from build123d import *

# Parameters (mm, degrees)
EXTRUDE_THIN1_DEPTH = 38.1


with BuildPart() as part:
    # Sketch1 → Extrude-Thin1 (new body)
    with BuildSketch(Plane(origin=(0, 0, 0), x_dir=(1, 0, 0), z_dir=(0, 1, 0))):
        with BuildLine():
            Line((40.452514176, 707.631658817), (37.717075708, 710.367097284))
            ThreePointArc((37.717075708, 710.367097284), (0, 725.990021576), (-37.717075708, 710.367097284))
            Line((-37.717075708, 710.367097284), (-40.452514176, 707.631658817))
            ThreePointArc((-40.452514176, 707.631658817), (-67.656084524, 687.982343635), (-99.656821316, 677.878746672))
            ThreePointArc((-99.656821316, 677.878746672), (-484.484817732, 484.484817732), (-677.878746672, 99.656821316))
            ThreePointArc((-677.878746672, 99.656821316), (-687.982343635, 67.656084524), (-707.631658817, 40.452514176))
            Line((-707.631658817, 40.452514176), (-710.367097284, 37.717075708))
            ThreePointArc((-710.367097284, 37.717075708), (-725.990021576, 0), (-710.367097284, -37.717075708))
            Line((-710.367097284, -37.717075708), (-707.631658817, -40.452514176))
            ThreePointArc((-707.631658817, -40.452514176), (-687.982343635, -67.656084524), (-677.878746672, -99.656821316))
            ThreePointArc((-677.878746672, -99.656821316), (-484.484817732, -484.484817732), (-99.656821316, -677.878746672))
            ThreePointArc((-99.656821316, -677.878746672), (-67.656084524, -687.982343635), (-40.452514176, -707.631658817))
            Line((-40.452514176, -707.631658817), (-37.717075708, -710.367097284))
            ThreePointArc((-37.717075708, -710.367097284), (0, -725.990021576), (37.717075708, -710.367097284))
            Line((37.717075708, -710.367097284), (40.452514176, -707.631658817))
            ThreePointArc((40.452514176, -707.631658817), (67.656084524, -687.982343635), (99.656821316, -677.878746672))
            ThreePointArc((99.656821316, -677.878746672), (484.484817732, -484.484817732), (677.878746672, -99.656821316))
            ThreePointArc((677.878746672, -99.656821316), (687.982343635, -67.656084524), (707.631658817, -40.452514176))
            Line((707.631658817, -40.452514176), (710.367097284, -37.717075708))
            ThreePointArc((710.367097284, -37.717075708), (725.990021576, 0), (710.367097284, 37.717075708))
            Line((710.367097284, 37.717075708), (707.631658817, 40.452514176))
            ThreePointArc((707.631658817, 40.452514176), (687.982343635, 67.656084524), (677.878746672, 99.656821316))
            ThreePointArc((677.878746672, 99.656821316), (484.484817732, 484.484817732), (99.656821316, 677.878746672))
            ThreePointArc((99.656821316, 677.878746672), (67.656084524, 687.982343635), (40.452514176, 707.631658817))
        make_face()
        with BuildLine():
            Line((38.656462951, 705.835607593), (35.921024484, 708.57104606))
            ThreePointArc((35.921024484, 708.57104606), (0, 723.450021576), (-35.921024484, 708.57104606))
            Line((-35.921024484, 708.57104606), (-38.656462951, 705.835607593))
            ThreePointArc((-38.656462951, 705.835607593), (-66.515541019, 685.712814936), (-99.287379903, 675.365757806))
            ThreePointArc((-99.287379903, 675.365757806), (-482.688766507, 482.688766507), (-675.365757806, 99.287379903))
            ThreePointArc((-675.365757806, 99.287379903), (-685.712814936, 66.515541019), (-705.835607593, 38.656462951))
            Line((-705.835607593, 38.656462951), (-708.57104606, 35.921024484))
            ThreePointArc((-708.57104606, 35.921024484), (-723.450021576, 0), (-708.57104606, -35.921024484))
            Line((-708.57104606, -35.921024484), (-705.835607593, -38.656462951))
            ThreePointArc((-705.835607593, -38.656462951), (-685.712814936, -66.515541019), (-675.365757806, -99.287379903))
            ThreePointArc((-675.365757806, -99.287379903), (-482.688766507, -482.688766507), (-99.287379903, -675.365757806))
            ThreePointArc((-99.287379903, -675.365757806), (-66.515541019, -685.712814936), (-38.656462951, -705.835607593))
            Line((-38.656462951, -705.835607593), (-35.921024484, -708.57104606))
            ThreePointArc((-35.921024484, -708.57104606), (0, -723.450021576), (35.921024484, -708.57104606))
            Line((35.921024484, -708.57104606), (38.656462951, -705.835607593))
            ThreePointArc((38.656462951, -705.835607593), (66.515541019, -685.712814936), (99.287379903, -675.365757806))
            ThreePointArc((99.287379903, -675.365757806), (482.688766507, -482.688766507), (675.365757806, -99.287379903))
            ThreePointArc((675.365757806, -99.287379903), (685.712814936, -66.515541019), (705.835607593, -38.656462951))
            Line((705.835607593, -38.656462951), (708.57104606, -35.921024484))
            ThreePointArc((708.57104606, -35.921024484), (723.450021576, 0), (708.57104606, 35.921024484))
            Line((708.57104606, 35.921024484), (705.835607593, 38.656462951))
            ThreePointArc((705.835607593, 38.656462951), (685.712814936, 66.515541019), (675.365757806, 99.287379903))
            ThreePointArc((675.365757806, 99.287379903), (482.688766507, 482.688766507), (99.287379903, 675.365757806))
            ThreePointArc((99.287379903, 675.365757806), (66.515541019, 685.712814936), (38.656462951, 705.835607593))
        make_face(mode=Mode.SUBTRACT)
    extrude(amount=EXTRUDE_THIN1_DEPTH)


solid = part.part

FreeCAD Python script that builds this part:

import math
import FreeCAD as App
import Part
import Sketcher
from FreeCAD import Vector
Q = App.Units.Quantity

doc = App.newDocument("Part")
params = doc.addObject("Spreadsheet::Sheet", "Params")
for row, (alias, value) in enumerate([
    ("sketch1_radius", "2 in"),
    ("sketch1_radius2", "2.1 in"),
    ("sketch1_radius3", "4.15 in"),
    ("sketch1_radius4", "26.975 in"),
    ("pad1_length", "1.5 in"),
], start=1):
    params.set(f"A{row}", alias)
    params.set(f"B{row}", "=" + value)
    params.setAlias(f"B{row}", alias)

body = doc.addObject("PartDesign::Body", "Body")

sketch1 = doc.addObject("Sketcher::SketchObject", "Sketch")
body.addObject(sketch1)
sketch1.AttachmentSupport = (doc.XZ_Plane, [""])
sketch1.MapMode = "FlatFace"
sketch1.addGeometry([
    Part.LineSegment(Vector(40.5, -707.6, 0), Vector(37.7, -710.4, 0)),
    Part.ArcOfCircle(Part.Circle(Vector(0, -672.7, 0), Vector(0, 0, 1), 53.3), math.radians(-135), math.radians(-45)),
    Part.LineSegment(Vector(-37.7, -710.4, 0), Vector(-40.5, -707.6, 0)),
    Part.ArcOfCircle(Part.Circle(Vector(-115, -782.2, 0), Vector(0, 0, 1), 105.4), math.radians(45), math.radians(82)),
    Part.ArcOfCircle(Part.Circle(Vector(0, 0, 0), Vector(0, 0, 1), 685.2), math.radians(-172), math.radians(-98)),
    Part.ArcOfCircle(Part.Circle(Vector(-782.2, -115, 0), Vector(0, 0, 1), 105.4), math.radians(8), math.radians(45)),
    Part.LineSegment(Vector(-707.6, -40.5, 0), Vector(-710.4, -37.7, 0)),
    Part.ArcOfCircle(Part.Circle(Vector(-672.7, 0, 0), Vector(0, 0, 1), 53.3), math.radians(135), math.radians(225)),
    Part.LineSegment(Vector(-710.4, 37.7, 0), Vector(-707.6, 40.5, 0)),
    Part.ArcOfCircle(Part.Circle(Vector(-782.2, 115, 0), Vector(0, 0, 1), 105.4), math.radians(-45), math.radians(-8)),
    Part.ArcOfCircle(Part.Circle(Vector(0, 0, 0), Vector(0, 0, 1), 685.2), math.radians(98), math.radians(172)),
    Part.ArcOfCircle(Part.Circle(Vector(-115, 782.2, 0), Vector(0, 0, 1), 105.4), math.radians(-82), math.radians(-45)),
    Part.LineSegment(Vector(-40.5, 707.6, 0), Vector(-37.7, 710.4, 0)),
    Part.ArcOfCircle(Part.Circle(Vector(0, 672.7, 0), Vector(0, 0, 1), 53.3), math.radians(45), math.radians(135)),
    Part.LineSegment(Vector(37.7, 710.4, 0), Vector(40.5, 707.6, 0)),
    Part.ArcOfCircle(Part.Circle(Vector(115, 782.2, 0), Vector(0, 0, 1), 105.4), math.radians(-135), math.radians(-98)),
    Part.ArcOfCircle(Part.Circle(Vector(0, 0, 0), Vector(0, 0, 1), 685.2), math.radians(8), math.radians(82)),
    Part.ArcOfCircle(Part.Circle(Vector(782.2, 115, 0), Vector(0, 0, 1), 105.4), math.radians(-172), math.radians(-135)),
    Part.LineSegment(Vector(707.6, 40.5, 0), Vector(710.4, 37.7, 0)),
    Part.ArcOfCircle(Part.Circle(Vector(672.7, 0, 0), Vector(0, 0, 1), 53.3), math.radians(-45), math.radians(45)),
    Part.LineSegment(Vector(710.4, -37.7, 0), Vector(707.6, -40.5, 0)),
    Part.ArcOfCircle(Part.Circle(Vector(782.2, -115, 0), Vector(0, 0, 1), 105.4), math.radians(135), math.radians(172)),
    Part.ArcOfCircle(Part.Circle(Vector(0, 0, 0), Vector(0, 0, 1), 685.2), math.radians(-82), math.radians(-8)),
    Part.ArcOfCircle(Part.Circle(Vector(115, -782.2, 0), Vector(0, 0, 1), 105.4), math.radians(98), math.radians(135)),
    Part.LineSegment(Vector(35.9, -708.6, 0), Vector(38.7, -705.8, 0)),
    Part.ArcOfCircle(Part.Circle(Vector(115, -782.2, 0), Vector(0, 0, 1), 107.9), math.radians(98), math.radians(135)),
    Part.ArcOfCircle(Part.Circle(Vector(0, 0, 0), Vector(0, 0, 1), 682.6), math.radians(-82), math.radians(-8)),
    Part.ArcOfCircle(Part.Circle(Vector(782.2, -115, 0), Vector(0, 0, 1), 107.9), math.radians(135), math.radians(172)),
    Part.LineSegment(Vector(705.8, -38.7, 0), Vector(708.6, -35.9, 0)),
    Part.ArcOfCircle(Part.Circle(Vector(672.7, 0, 0), Vector(0, 0, 1), 50.8), math.radians(-45), math.radians(45)),
    Part.LineSegment(Vector(708.6, 35.9, 0), Vector(705.8, 38.7, 0)),
    Part.ArcOfCircle(Part.Circle(Vector(782.2, 115, 0), Vector(0, 0, 1), 107.9), math.radians(-172), math.radians(-135)),
    Part.ArcOfCircle(Part.Circle(Vector(0, 0, 0), Vector(0, 0, 1), 682.6), math.radians(8), math.radians(82)),
    Part.ArcOfCircle(Part.Circle(Vector(115, 782.2, 0), Vector(0, 0, 1), 107.9), math.radians(-135), math.radians(-98)),
    Part.LineSegment(Vector(38.7, 705.8, 0), Vector(35.9, 708.6, 0)),
    Part.ArcOfCircle(Part.Circle(Vector(0, 672.7, 0), Vector(0, 0, 1), 50.8), math.radians(45), math.radians(135)),
    Part.LineSegment(Vector(-35.9, 708.6, 0), Vector(-38.7, 705.8, 0)),
    Part.ArcOfCircle(Part.Circle(Vector(-115, 782.2, 0), Vector(0, 0, 1), 107.9), math.radians(-82), math.radians(-45)),
    Part.ArcOfCircle(Part.Circle(Vector(0, 0, 0), Vector(0, 0, 1), 682.6), math.radians(98), math.radians(172)),
    Part.ArcOfCircle(Part.Circle(Vector(-782.2, 115, 0), Vector(0, 0, 1), 107.9), math.radians(-45), math.radians(-8)),
    Part.LineSegment(Vector(-705.8, 38.7, 0), Vector(-708.6, 35.9, 0)),
    Part.ArcOfCircle(Part.Circle(Vector(-672.7, 0, 0), Vector(0, 0, 1), 50.8), math.radians(135), math.radians(225)),
    Part.LineSegment(Vector(-708.6, -35.9, 0), Vector(-705.8, -38.7, 0)),
    Part.ArcOfCircle(Part.Circle(Vector(-782.2, -115, 0), Vector(0, 0, 1), 107.9), math.radians(8), math.radians(45)),
    Part.ArcOfCircle(Part.Circle(Vector(0, 0, 0), Vector(0, 0, 1), 682.6), math.radians(-172), math.radians(-98)),
    Part.ArcOfCircle(Part.Circle(Vector(-115, -782.2, 0), Vector(0, 0, 1), 107.9), math.radians(45), math.radians(82)),
    Part.LineSegment(Vector(-38.7, -705.8, 0), Vector(-35.9, -708.6, 0)),
    Part.ArcOfCircle(Part.Circle(Vector(0, -672.7, 0), Vector(0, 0, 1), 50.8), math.radians(-135), math.radians(-45)),
], False)
sketch1.addConstraint([
    Sketcher.Constraint("Tangent", 0, 2, 1, 2),
    Sketcher.Constraint("Tangent", 1, 1, 2, 1),
    Sketcher.Constraint("Tangent", 2, 2, 3, 1),
    Sketcher.Constraint("Tangent", 3, 2, 4, 2),
    Sketcher.Constraint("Tangent", 4, 1, 5, 1),
    Sketcher.Constraint("Tangent", 5, 2, 6, 1),
    Sketcher.Constraint("Tangent", 6, 2, 7, 2),
    Sketcher.Constraint("Tangent", 7, 1, 8, 1),
    Sketcher.Constraint("Tangent", 8, 2, 9, 1),
    Sketcher.Constraint("Tangent", 9, 2, 10, 2),
    Sketcher.Constraint("Tangent", 10, 1, 11, 1),
    Sketcher.Constraint("Tangent", 11, 2, 12, 1),
    Sketcher.Constraint("Tangent", 12, 2, 13, 2),
    Sketcher.Constraint("Tangent", 13, 1, 14, 1),
    Sketcher.Constraint("Tangent", 14, 2, 15, 1),
    Sketcher.Constraint("Tangent", 15, 2, 16, 2),
    Sketcher.Constraint("Tangent", 16, 1, 17, 1),
    Sketcher.Constraint("Tangent", 17, 2, 18, 1),
    Sketcher.Constraint("Tangent", 18, 2, 19, 2),
    Sketcher.Constraint("Tangent", 19, 1, 20, 1),
    Sketcher.Constraint("Tangent", 20, 2, 21, 1),
    Sketcher.Constraint("Tangent", 21, 2, 22, 2),
    Sketcher.Constraint("Tangent", 22, 1, 23, 1),
    Sketcher.Constraint("Tangent", 23, 2, 0, 1),
    Sketcher.Constraint("Tangent", 24, 2, 25, 2),
    Sketcher.Constraint("Tangent", 25, 1, 26, 1),
    Sketcher.Constraint("Tangent", 26, 2, 27, 2),
    Sketcher.Constraint("Tangent", 27, 1, 28, 1),
    Sketcher.Constraint("Tangent", 28, 2, 29, 1),
    Sketcher.Constraint("Tangent", 29, 2, 30, 1),
    Sketcher.Constraint("Tangent", 30, 2, 31, 2),
    Sketcher.Constraint("Tangent", 31, 1, 32, 1),
    Sketcher.Constraint("Tangent", 32, 2, 33, 2),
    Sketcher.Constraint("Tangent", 33, 1, 34, 1),
    Sketcher.Constraint("Tangent", 34, 2, 35, 1),
    Sketcher.Constraint("Tangent", 35, 2, 36, 1),
    Sketcher.Constraint("Tangent", 36, 2, 37, 2),
    Sketcher.Constraint("Tangent", 37, 1, 38, 1),
    Sketcher.Constraint("Tangent", 38, 2, 39, 2),
    Sketcher.Constraint("Tangent", 39, 1, 40, 1),
    Sketcher.Constraint("Tangent", 40, 2, 41, 1),
    Sketcher.Constraint("Tangent", 41, 2, 42, 1),
    Sketcher.Constraint("Tangent", 42, 2, 43, 2),
    Sketcher.Constraint("Tangent", 43, 1, 44, 1),
    Sketcher.Constraint("Tangent", 44, 2, 45, 2),
    Sketcher.Constraint("Tangent", 45, 1, 46, 1),
    Sketcher.Constraint("Tangent", 46, 2, 47, 1),
    Sketcher.Constraint("Tangent", 47, 2, 24, 1),
    Sketcher.Constraint("Coincident", 4, 3, -1, 1),
    Sketcher.Constraint("Coincident", 10, 3, -1, 1),
    Sketcher.Constraint("Coincident", 16, 3, -1, 1),
    Sketcher.Constraint("Coincident", 22, 3, -1, 1),
    Sketcher.Constraint("Coincident", 26, 3, -1, 1),
    Sketcher.Constraint("Coincident", 32, 3, -1, 1),
    Sketcher.Constraint("Coincident", 38, 3, -1, 1),
    Sketcher.Constraint("Coincident", 44, 3, -1, 1),
    Sketcher.Constraint("Coincident", 25, 3, 23, 3),
    Sketcher.Constraint("Coincident", 27, 3, 21, 3),
    Sketcher.Constraint("Coincident", 29, 3, 19, 3),
    Sketcher.Constraint("Coincident", 31, 3, 17, 3),
    Sketcher.Constraint("Coincident", 33, 3, 15, 3),
    Sketcher.Constraint("Coincident", 35, 3, 13, 3),
    Sketcher.Constraint("Coincident", 37, 3, 11, 3),
    Sketcher.Constraint("Coincident", 39, 3, 9, 3),
    Sketcher.Constraint("Coincident", 41, 3, 7, 3),
    Sketcher.Constraint("Coincident", 43, 3, 5, 3),
    Sketcher.Constraint("Coincident", 45, 3, 3, 3),
    Sketcher.Constraint("Coincident", 47, 3, 1, 3),
    Sketcher.Constraint("Equal", 3, 5),
    Sketcher.Constraint("Equal", 1, 7),
    Sketcher.Constraint("Equal", 5, 9),
    Sketcher.Constraint("Equal", 4, 10),
    Sketcher.Constraint("Equal", 9, 11),
    Sketcher.Constraint("Equal", 7, 13),
    Sketcher.Constraint("Equal", 11, 15),
    Sketcher.Constraint("Equal", 10, 16),
    Sketcher.Constraint("Equal", 15, 17),
    Sketcher.Constraint("Equal", 13, 19),
    Sketcher.Constraint("Equal", 17, 21),
    Sketcher.Constraint("Equal", 16, 22),
    Sketcher.Constraint("Equal", 21, 23),
    Sketcher.Constraint("Equal", 27, 31),
    Sketcher.Constraint("Equal", 29, 35),
    Sketcher.Constraint("Equal", 33, 37),
    Sketcher.Constraint("Equal", 35, 41),
    Sketcher.Constraint("Equal", 39, 43),
    Sketcher.Constraint("Equal", 41, 47),
    Sketcher.Constraint("Symmetric", 1, 3, 13, 3, -1, 1),
    Sketcher.Constraint("Symmetric", 7, 3, 19, 3, -1, 1),
    Sketcher.Constraint("Symmetric", 0, 2, 1, 1, -2),
    Sketcher.Constraint("Symmetric", 8, 2, 17, 2, -2),
    Sketcher.Constraint("Perpendicular", 0, 2),
    Sketcher.Constraint("Parallel", 2, 6),
    Sketcher.Constraint("Perpendicular", 6, 8),
    Sketcher.Constraint("Parallel", 8, 12),
    Sketcher.Constraint("Perpendicular", 12, 14),
    Sketcher.Constraint("Perpendicular", 18, 20),
    Sketcher.Constraint("Parallel", 20, 24),
    Sketcher.Constraint("Equal", 2, 6),
    Sketcher.Constraint("Radius", 29, Q("2 in")),
    Sketcher.Constraint("Radius", 1, Q("2.1 in")),
    Sketcher.Constraint("Radius", 3, Q("4.15 in")),
    Sketcher.Constraint("Radius", 4, Q("26.975 in")),
    Sketcher.Constraint("DistanceY", 1, 3, -1, 1, 672.650022),
])
sketch1.setExpression("Constraints[99]", "Params.sketch1_radius")
sketch1.setExpression("Constraints[100]", "Params.sketch1_radius2")
sketch1.setExpression("Constraints[101]", "Params.sketch1_radius3")
sketch1.setExpression("Constraints[102]", "Params.sketch1_radius4")
pad1 = doc.addObject("PartDesign::Pad", "Pad")
body.addObject(pad1)
pad1.Profile = sketch1
pad1.setExpression("Length", "Params.pad1_length")
pad1.Reversed = True

doc.recompute()
